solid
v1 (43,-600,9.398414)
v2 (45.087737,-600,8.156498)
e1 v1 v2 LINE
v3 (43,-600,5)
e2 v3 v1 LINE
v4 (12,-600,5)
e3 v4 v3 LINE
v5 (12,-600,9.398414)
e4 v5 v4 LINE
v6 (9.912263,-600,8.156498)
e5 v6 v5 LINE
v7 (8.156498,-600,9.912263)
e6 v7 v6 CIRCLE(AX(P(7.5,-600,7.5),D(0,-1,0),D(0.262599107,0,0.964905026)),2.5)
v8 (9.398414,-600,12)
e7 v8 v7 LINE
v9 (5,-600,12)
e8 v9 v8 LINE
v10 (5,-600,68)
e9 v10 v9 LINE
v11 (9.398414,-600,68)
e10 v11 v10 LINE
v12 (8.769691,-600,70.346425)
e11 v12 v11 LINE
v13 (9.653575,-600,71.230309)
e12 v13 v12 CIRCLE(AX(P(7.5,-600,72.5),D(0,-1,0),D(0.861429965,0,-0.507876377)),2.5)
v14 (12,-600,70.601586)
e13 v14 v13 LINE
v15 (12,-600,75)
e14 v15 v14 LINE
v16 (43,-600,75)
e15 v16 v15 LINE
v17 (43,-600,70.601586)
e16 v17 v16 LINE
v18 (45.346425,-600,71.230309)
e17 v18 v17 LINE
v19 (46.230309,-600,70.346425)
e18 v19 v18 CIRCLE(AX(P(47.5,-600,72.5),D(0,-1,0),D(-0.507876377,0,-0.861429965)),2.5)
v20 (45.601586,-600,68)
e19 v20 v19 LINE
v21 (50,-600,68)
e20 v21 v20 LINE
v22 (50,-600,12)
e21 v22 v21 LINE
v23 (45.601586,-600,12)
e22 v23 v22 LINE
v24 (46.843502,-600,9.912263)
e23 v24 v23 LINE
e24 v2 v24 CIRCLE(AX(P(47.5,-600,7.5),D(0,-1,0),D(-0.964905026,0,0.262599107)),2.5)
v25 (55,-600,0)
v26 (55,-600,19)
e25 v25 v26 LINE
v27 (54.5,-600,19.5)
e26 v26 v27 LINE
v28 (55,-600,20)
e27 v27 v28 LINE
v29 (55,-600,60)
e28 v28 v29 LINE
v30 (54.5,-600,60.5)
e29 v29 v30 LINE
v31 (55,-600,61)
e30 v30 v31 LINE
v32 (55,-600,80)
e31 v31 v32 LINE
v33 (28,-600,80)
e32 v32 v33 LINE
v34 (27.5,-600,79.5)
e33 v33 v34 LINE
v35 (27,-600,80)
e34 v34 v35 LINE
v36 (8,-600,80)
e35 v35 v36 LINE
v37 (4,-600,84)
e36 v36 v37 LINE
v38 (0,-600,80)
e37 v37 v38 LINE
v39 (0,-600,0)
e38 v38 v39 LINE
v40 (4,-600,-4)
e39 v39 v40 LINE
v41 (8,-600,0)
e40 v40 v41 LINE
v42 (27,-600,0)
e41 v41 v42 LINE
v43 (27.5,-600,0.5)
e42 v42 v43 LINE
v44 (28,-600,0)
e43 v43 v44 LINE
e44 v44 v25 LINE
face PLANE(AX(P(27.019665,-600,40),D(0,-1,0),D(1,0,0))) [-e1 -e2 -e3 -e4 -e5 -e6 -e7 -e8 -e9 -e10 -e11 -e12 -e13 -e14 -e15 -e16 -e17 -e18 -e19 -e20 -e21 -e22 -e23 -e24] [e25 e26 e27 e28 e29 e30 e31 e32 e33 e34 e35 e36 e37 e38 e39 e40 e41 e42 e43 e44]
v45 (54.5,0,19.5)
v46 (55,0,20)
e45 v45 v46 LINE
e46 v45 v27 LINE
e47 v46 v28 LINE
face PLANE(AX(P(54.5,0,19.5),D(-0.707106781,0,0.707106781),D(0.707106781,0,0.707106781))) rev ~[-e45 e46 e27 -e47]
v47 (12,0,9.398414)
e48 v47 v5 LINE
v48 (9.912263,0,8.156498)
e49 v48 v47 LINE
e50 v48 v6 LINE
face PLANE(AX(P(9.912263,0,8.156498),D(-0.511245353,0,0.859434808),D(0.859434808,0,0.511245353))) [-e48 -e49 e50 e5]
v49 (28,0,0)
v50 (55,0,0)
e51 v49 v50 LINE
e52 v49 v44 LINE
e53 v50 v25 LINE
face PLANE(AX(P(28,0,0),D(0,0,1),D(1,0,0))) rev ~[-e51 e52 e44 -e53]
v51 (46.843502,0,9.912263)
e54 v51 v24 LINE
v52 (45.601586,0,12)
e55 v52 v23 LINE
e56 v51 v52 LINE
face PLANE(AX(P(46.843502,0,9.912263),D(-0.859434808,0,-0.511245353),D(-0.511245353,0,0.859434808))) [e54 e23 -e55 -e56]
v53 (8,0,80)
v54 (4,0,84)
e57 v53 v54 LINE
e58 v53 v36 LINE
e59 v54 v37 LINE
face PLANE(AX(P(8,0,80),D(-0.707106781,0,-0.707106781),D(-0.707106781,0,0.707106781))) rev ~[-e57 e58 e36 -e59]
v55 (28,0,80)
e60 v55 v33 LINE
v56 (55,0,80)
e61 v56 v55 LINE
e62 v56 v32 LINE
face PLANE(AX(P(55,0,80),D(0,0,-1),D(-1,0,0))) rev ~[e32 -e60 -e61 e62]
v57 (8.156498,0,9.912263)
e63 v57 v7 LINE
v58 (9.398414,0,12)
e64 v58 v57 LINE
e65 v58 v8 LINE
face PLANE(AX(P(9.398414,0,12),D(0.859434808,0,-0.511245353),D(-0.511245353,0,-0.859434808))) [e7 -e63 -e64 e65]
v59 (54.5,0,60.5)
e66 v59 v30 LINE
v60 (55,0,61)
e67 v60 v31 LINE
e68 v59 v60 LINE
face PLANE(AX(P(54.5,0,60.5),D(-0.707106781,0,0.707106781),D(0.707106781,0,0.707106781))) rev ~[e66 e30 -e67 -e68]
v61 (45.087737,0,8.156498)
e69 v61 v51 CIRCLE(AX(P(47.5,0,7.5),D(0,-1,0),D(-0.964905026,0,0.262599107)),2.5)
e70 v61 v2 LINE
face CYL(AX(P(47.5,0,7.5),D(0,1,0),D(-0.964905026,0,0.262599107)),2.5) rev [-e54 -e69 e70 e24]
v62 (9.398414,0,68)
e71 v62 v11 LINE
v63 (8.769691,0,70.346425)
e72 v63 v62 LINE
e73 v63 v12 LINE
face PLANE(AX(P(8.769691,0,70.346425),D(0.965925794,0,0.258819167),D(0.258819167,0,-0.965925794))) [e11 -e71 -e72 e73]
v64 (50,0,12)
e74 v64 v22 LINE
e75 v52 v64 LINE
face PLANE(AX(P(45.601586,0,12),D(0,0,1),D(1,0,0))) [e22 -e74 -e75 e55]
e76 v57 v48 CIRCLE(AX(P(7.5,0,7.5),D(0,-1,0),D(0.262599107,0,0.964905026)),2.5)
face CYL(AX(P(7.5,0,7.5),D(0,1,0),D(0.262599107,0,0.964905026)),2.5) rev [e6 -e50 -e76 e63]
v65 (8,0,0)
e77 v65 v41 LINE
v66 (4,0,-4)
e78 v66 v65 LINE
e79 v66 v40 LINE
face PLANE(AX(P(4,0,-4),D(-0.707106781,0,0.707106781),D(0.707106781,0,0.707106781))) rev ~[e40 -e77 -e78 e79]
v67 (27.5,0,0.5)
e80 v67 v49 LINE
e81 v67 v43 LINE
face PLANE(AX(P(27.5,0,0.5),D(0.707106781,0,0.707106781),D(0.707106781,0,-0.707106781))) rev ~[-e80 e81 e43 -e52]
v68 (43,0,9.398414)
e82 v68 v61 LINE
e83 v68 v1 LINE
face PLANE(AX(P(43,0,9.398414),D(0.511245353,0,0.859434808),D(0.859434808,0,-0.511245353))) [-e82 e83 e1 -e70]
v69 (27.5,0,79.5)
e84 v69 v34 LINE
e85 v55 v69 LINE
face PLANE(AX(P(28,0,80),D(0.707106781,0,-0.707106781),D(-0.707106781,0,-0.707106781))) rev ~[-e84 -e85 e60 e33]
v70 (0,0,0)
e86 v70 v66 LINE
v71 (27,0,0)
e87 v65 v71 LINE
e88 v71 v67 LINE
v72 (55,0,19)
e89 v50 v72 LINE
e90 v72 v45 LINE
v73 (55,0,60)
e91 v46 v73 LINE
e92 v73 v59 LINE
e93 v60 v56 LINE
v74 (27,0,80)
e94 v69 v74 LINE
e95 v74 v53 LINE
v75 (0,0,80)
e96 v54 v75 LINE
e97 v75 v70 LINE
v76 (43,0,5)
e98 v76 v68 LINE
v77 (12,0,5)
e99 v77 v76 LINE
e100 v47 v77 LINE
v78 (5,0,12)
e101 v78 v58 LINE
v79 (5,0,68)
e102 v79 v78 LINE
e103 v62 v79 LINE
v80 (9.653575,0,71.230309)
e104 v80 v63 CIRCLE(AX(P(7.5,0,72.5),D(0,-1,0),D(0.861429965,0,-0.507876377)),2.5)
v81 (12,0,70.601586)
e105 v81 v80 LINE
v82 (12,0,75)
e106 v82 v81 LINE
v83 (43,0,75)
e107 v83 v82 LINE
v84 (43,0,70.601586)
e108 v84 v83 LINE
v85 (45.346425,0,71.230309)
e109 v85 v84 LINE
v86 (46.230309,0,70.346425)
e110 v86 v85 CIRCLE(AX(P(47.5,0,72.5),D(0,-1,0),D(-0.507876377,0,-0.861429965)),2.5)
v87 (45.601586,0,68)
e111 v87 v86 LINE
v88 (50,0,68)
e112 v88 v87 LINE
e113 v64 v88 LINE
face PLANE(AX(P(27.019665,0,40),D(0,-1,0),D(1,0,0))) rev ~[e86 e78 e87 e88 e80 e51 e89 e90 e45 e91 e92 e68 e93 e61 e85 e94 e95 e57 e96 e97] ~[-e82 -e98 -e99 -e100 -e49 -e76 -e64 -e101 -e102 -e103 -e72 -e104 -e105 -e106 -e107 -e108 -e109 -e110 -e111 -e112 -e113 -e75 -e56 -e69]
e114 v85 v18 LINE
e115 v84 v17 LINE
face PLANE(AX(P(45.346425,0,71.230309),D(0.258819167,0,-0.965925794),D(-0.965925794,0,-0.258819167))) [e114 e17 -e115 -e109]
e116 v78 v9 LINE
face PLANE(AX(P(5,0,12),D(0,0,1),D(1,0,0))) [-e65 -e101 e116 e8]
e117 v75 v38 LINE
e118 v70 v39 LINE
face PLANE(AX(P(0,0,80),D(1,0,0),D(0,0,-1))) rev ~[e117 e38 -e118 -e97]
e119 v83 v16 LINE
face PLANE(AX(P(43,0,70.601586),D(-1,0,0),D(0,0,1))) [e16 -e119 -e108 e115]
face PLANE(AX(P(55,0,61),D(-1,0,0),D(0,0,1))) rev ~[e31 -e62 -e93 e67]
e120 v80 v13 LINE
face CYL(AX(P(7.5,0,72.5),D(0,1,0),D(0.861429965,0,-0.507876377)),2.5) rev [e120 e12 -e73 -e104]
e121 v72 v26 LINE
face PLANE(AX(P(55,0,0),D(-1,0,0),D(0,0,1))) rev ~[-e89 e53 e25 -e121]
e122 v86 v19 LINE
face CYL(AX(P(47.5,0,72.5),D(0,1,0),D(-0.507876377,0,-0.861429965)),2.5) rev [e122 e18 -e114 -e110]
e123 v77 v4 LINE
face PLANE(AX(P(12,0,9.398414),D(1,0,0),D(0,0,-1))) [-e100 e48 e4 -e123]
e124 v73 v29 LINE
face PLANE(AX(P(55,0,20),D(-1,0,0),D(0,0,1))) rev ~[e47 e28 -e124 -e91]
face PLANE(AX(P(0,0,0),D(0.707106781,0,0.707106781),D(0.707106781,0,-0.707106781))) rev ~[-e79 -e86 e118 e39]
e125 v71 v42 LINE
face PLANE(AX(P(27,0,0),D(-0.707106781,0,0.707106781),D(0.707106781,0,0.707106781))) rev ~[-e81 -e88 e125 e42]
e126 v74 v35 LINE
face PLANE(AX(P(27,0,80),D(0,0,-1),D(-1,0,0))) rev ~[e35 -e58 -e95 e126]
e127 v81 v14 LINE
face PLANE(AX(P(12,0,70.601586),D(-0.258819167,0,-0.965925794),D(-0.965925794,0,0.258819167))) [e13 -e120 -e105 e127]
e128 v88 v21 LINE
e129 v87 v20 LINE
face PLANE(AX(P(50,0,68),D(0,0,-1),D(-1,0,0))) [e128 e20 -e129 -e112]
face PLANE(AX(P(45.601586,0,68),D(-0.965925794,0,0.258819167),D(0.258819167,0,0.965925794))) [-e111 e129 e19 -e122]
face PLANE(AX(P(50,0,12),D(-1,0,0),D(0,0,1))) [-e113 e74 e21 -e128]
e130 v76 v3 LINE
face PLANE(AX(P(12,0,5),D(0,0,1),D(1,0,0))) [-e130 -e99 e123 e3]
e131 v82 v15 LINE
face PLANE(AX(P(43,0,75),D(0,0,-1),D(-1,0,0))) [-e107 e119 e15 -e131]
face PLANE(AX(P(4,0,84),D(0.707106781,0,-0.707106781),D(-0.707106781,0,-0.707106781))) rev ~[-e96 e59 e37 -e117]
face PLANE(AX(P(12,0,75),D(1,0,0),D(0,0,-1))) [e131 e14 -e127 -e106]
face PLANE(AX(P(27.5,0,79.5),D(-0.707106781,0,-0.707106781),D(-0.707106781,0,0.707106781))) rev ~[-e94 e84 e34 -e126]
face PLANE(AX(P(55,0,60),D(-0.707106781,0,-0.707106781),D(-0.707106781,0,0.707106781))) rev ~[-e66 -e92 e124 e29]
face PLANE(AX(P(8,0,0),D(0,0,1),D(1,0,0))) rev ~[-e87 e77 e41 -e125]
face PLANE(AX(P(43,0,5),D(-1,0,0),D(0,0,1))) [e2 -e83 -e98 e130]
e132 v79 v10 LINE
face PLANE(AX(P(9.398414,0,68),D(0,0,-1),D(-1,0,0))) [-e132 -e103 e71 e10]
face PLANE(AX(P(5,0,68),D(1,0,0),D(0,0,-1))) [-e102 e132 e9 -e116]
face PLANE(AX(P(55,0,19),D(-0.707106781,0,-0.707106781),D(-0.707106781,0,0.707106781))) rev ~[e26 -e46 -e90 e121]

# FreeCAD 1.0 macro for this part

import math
import FreeCAD as App
import Part
import Sketcher

V = App.Vector
Q = App.Units.Quantity

doc = App.newDocument("Part")
body = doc.addObject("PartDesign::Body", "Body")

sketch1 = doc.addObject("Sketcher::SketchObject", "Sketch")
body.addObject(sketch1)
sketch1.AttachmentSupport = (doc.XZ_Plane, [""])
sketch1.MapMode = "FlatFace"
sketch1.addGeometry(Part.LineSegment(V(0, 80, 0), V(0, 0, 0)), False)
sketch1.addGeometry(Part.LineSegment(V(0, 0, 0), V(4, -4, 0)), False)
sketch1.addGeometry(Part.LineSegment(V(4, -4, 0), V(8, 0, 0)), False)
sketch1.addGeometry(Part.LineSegment(V(8, 0, 0), V(27, 0, 0)), False)
sketch1.addGeometry(Part.LineSegment(V(27, 0, 0), V(27.5, 0.5, 0)), False)
sketch1.addGeometry(Part.LineSegment(V(27.5, 0.5, 0), V(28, 0, 0)), False)
sketch1.addGeometry(Part.LineSegment(V(28, 0, 0), V(55, 0, 0)), False)
sketch1.addGeometry(Part.LineSegment(V(55, 0, 0), V(55, 19, 0)), False)
sketch1.addGeometry(Part.LineSegment(V(55, 19, 0), V(54.5, 19.5, 0)), False)
sketch1.addGeometry(Part.LineSegment(V(54.5, 19.5, 0), V(55, 20, 0)), False)
sketch1.addGeometry(Part.LineSegment(V(55, 20, 0), V(55, 60, 0)), False)
sketch1.addGeometry(Part.LineSegment(V(55, 60, 0), V(54.5, 60.5, 0)), False)
sketch1.addGeometry(Part.LineSegment(V(54.5, 60.5, 0), V(55, 61, 0)), False)
sketch1.addGeometry(Part.LineSegment(V(55, 61, 0), V(55, 80, 0)), False)
sketch1.addGeometry(Part.LineSegment(V(55, 80, 0), V(28, 80, 0)), False)
sketch1.addGeometry(Part.LineSegment(V(28, 80, 0), V(27.5, 79.5, 0)), False)
sketch1.addGeometry(Part.LineSegment(V(27.5, 79.5, 0), V(27, 80, 0)), False)
sketch1.addGeometry(Part.LineSegment(V(27, 80, 0), V(8, 80, 0)), False)
sketch1.addGeometry(Part.LineSegment(V(8, 80, 0), V(4, 84, 0)), False)
sketch1.addGeometry(Part.LineSegment(V(4, 84, 0), V(0, 80, 0)), False)
sketch1.addConstraint(Sketcher.Constraint("Coincident", 0, 2, 1, 1))
sketch1.addConstraint(Sketcher.Constraint("Coincident", 1, 2, 2, 1))
sketch1.addConstraint(Sketcher.Constraint("Coincident", 2, 2, 3, 1))
sketch1.addConstraint(Sketcher.Constraint("Coincident", 3, 2, 4, 1))
sketch1.addConstraint(Sketcher.Constraint("Coincident", 4, 2, 5, 1))
sketch1.addConstraint(Sketcher.Constraint("Coincident", 5, 2, 6, 1))
sketch1.addConstraint(Sketcher.Constraint("Coincident", 6, 2, 7, 1))
sketch1.addConstraint(Sketcher.Constraint("Coincident", 7, 2, 8, 1))
sketch1.addConstraint(Sketcher.Constraint("Coincident", 8, 2, 9, 1))
sketch1.addConstraint(Sketcher.Constraint("Coincident", 9, 2, 10, 1))
sketch1.addConstraint(Sketcher.Constraint("Coincident", 10, 2, 11, 1))
sketch1.addConstraint(Sketcher.Constraint("Coincident", 11, 2, 12, 1))
sketch1.addConstraint(Sketcher.Constraint("Coincident", 12, 2, 13, 1))
sketch1.addConstraint(Sketcher.Constraint("Coincident", 13, 2, 14, 1))
sketch1.addConstraint(Sketcher.Constraint("Coincident", 14, 2, 15, 1))
sketch1.addConstraint(Sketcher.Constraint("Coincident", 15, 2, 16, 1))
sketch1.addConstraint(Sketcher.Constraint("Coincident", 16, 2, 17, 1))
sketch1.addConstraint(Sketcher.Constraint("Coincident", 17, 2, 18, 1))
sketch1.addConstraint(Sketcher.Constraint("Coincident", 18, 2, 19, 1))
sketch1.addConstraint(Sketcher.Constraint("Coincident", 19, 2, 0, 1))
sketch1.addConstraint(Sketcher.Constraint("Vertical", 0))
sketch1.addConstraint(Sketcher.Constraint("Horizontal", 3))
sketch1.addConstraint(Sketcher.Constraint("Horizontal", 6))
sketch1.addConstraint(Sketcher.Constraint("Vertical", 7))
sketch1.addConstraint(Sketcher.Constraint("Vertical", 10))
sketch1.addConstraint(Sketcher.Constraint("Vertical", 13))
sketch1.addConstraint(Sketcher.Constraint("Horizontal", 14))
sketch1.addConstraint(Sketcher.Constraint("Horizontal", 17))
sketch1.addConstraint(Sketcher.Constraint("Coincident", 0, 2, -1, 1))
sketch1.addConstraint(Sketcher.Constraint("PointOnObject", 2, 2, -1))
sketch1.addConstraint(Sketcher.Constraint("PointOnObject", 5, 2, -1))
sketch1.addConstraint(Sketcher.Constraint("Perpendicular", 1, 2))
sketch1.addConstraint(Sketcher.Constraint("Parallel", 2, 4))
sketch1.addConstraint(Sketcher.Constraint("Perpendicular", 4, 5))
sketch1.addConstraint(Sketcher.Constraint("Parallel", 5, 8))
sketch1.addConstraint(Sketcher.Constraint("Perpendicular", 8, 9))
sketch1.addConstraint(Sketcher.Constraint("Perpendicular", 9, 11))
sketch1.addConstraint(Sketcher.Constraint("Perpendicular", 11, 12))
sketch1.addConstraint(Sketcher.Constraint("Parallel", 12, 15))
sketch1.addConstraint(Sketcher.Constraint("Perpendicular", 15, 16))
sketch1.addConstraint(Sketcher.Constraint("Parallel", 16, 18))
sketch1.addConstraint(Sketcher.Constraint("Perpendicular", 18, 19))
sketch1.addConstraint(Sketcher.Constraint("Horizontal", 14, 2, 16, 2))
sketch1.addConstraint(Sketcher.Constraint("Horizontal", 17, 2, 19, 2))
sketch1.addConstraint(Sketcher.Constraint("Vertical", 7, 2, 9, 2))
sketch1.addConstraint(Sketcher.Constraint("Vertical", 8, 2, 11, 2))
sketch1.addConstraint(Sketcher.Constraint("Vertical", 10, 2, 12, 2))
sketch1.addConstraint(Sketcher.Constraint("Vertical", 5, 2, 14, 2))
sketch1.addConstraint(Sketcher.Constraint("Vertical", 4, 2, 15, 2))
sketch1.addConstraint(Sketcher.Constraint("Vertical", 3, 2, 16, 2))
sketch1.addConstraint(Sketcher.Constraint("Vertical", 2, 2, 17, 2))
sketch1.addConstraint(Sketcher.Constraint("Equal", 17, 7))
sketch1.addConstraint(Sketcher.Constraint("Equal", 7, 13))
sketch1.addConstraint(Sketcher.Constraint("Equal", 5, 8))
sketch1.addConstraint(Sketcher.Constraint("DistanceX", 3, 1, 3, 2, Q("19 mm")))
sketch1.addConstraint(Sketcher.Constraint("DistanceX", 6, 1, 6, 2, Q("27 mm")))
sketch1.addConstraint(Sketcher.Constraint("DistanceY", 0, 2, 0, 1, Q("80 mm")))
sketch1.addConstraint(Sketcher.Constraint("DistanceY", 10, 1, 10, 2, Q("40 mm")))
sketch1.addConstraint(Sketcher.Constraint("DistanceX", -1, 1, 1, 2, Q("4 mm")))
pad1 = doc.addObject("PartDesign::Pad", "Pad")
body.addObject(pad1)
pad1.Profile = sketch1
pad1.Length = 600

sketch2 = doc.addObject("Sketcher::SketchObject", "Sketch001")
body.addObject(sketch2)
sketch2.AttachmentSupport = (doc.XZ_Plane, [""])
sketch2.MapMode = "FlatFace"
sketch2.addGeometry(Part.LineSegment(V(5, 12, 0), V(9.4, 12, 0)), False)
sketch2.addGeometry(Part.LineSegment(V(9.4, 12, 0), V(8.2, 9.9, 0)), False)
sketch2.addGeometry(Part.ArcOfCircle(Part.Circle(V(7.5, 7.5, 0), V(0, 0, 1), 2.5), math.radians(75), math.radians(375)), False)
sketch2.addGeometry(Part.LineSegment(V(9.9, 8.2, 0), V(12, 9.4, 0)), False)
sketch2.addGeometry(Part.LineSegment(V(12, 9.4, 0), V(12, 5, 0)), False)
sketch2.addGeometry(Part.LineSegment(V(12, 5, 0), V(43, 5, 0)), False)
sketch2.addGeometry(Part.LineSegment(V(43, 5, 0), V(43, 9.4, 0)), False)
sketch2.addGeometry(Part.LineSegment(V(43, 9.4, 0), V(45.1, 8.2, 0)), False)
sketch2.addGeometry(Part.ArcOfCircle(Part.Circle(V(47.5, 7.5, 0), V(0, 0, 1), 2.5), math.radians(165), math.radians(465)), False)
sketch2.addGeometry(Part.LineSegment(V(46.8, 9.9, 0), V(45.6, 12, 0)), False)
sketch2.addGeometry(Part.LineSegment(V(45.6, 12, 0), V(50, 12, 0)), False)
sketch2.addGeometry(Part.LineSegment(V(50, 12, 0), V(50, 68, 0)), False)
sketch2.addGeometry(Part.LineSegment(V(50, 68, 0), V(45.6, 68, 0)), False)
sketch2.addGeometry(Part.LineSegment(V(45.6, 68, 0), V(46.2, 70.3, 0)), False)
sketch2.addGeometry(Part.ArcOfCircle(Part.Circle(V(47.5, 72.5, 0), V(0, 0, 1), 2.5), math.radians(-121), math.radians(211)), False)
sketch2.addGeometry(Part.LineSegment(V(45.3, 71.2, 0), V(43, 70.6, 0)), False)
sketch2.addGeometry(Part.LineSegment(V(43, 70.6, 0), V(43, 75, 0)), False)
sketch2.addGeometry(Part.LineSegment(V(43, 75, 0), V(12, 75, 0)), False)
sketch2.addGeometry(Part.LineSegment(V(12, 75, 0), V(12, 70.6, 0)), False)
sketch2.addGeometry(Part.LineSegment(V(12, 70.6, 0), V(9.7, 71.2, 0)), False)
sketch2.addGeometry(Part.ArcOfCircle(Part.Circle(V(7.5, 72.5, 0), V(0, 0, 1), 2.5), math.radians(-31), math.radians(301)), False)
sketch2.addGeometry(Part.LineSegment(V(8.8, 70.3, 0), V(9.4, 68, 0)), False)
sketch2.addGeometry(Part.LineSegment(V(9.4, 68, 0), V(5, 68, 0)), False)
sketch2.addGeometry(Part.LineSegment(V(5, 68, 0), V(5, 12, 0)), False)
sketch2.addConstraint(Sketcher.Constraint("Coincident", 0, 2, 1, 1))
sketch2.addConstraint(Sketcher.Constraint("Coincident", 1, 2, 2, 1))
sketch2.addConstraint(Sketcher.Constraint("Coincident", 2, 2, 3, 1))
sketch2.addConstraint(Sketcher.Constraint("Coincident", 3, 2, 4, 1))
sketch2.addConstraint(Sketcher.Constraint("Coincident", 4, 2, 5, 1))
sketch2.addConstraint(Sketcher.Constraint("Coincident", 5, 2, 6, 1))
sketch2.addConstraint(Sketcher.Constraint("Coincident", 6, 2, 7, 1))
sketch2.addConstraint(Sketcher.Constraint("Coincident", 7, 2, 8, 1))
sketch2.addConstraint(Sketcher.Constraint("Coincident", 8, 2, 9, 1))
sketch2.addConstraint(Sketcher.Constraint("Coincident", 9, 2, 10, 1))
sketch2.addConstraint(Sketcher.Constraint("Coincident", 10, 2, 11, 1))
sketch2.addConstraint(Sketcher.Constraint("Coincident", 11, 2, 12, 1))
sketch2.addConstraint(Sketcher.Constraint("Coincident", 12, 2, 13, 1))
sketch2.addConstraint(Sketcher.Constraint("Coincident", 13, 2, 14, 1))
sketch2.addConstraint(Sketcher.Constraint("Coincident", 14, 2, 15, 1))
sketch2.addConstraint(Sketcher.Constraint("Coincident", 15, 2, 16, 1))
sketch2.addConstraint(Sketcher.Constraint("Coincident", 16, 2, 17, 1))
sketch2.addConstraint(Sketcher.Constraint("Coincident", 17, 2, 18, 1))
sketch2.addConstraint(Sketcher.Constraint("Coincident", 18, 2, 19, 1))
sketch2.addConstraint(Sketcher.Constraint("Coincident", 19, 2, 20, 1))
sketch2.addConstraint(Sketcher.Constraint("Coincident", 20, 2, 21, 1))
sketch2.addConstraint(Sketcher.Constraint("Coincident", 21, 2, 22, 1))
sketch2.addConstraint(Sketcher.Constraint("Coincident", 22, 2, 23, 1))
sketch2.addConstraint(Sketcher.Constraint("Coincident", 23, 2, 0, 1))
sketch2.addConstraint(Sketcher.Constraint("Horizontal", 0))
sketch2.addConstraint(Sketcher.Constraint("Vertical", 4))
sketch2.addConstraint(Sketcher.Constraint("Horizontal", 5))
sketch2.addConstraint(Sketcher.Constraint("Vertical", 6))
sketch2.addConstraint(Sketcher.Constraint("Horizontal", 10))
sketch2.addConstraint(Sketcher.Constraint("Vertical", 11))
sketch2.addConstraint(Sketcher.Constraint("Horizontal", 12))
sketch2.addConstraint(Sketcher.Constraint("Vertical", 16))
sketch2.addConstraint(Sketcher.Constraint("Horizontal", 17))
sketch2.addConstraint(Sketcher.Constraint("Vertical", 18))
sketch2.addConstraint(Sketcher.Constraint("Horizontal", 22))
sketch2.addConstraint(Sketcher.Constraint("Vertical", 23))
sketch2.addConstraint(Sketcher.Constraint("Equal", 2, 8))
sketch2.addConstraint(Sketcher.Constraint("Equal", 8, 14))
sketch2.addConstraint(Sketcher.Constraint("Equal", 14, 20))
sketch2.addConstraint(Sketcher.Constraint("Perpendicular", 1, 7))
sketch2.addConstraint(Sketcher.Constraint("Perpendicular", 3, 9))
sketch2.addConstraint(Sketcher.Constraint("Perpendicular", 13, 19))
sketch2.addConstraint(Sketcher.Constraint("Perpendicular", 15, 21))
sketch2.addConstraint(Sketcher.Constraint("Horizontal", 2, 3, 8, 3))
sketch2.addConstraint(Sketcher.Constraint("Horizontal", 14, 3, 20, 3))
sketch2.addConstraint(Sketcher.Constraint("Horizontal", 3, 2, 6, 2))
sketch2.addConstraint(Sketcher.Constraint("Horizontal", 2, 2, 7, 2))
sketch2.addConstraint(Sketcher.Constraint("Horizontal", 1, 2, 8, 2))
sketch2.addConstraint(Sketcher.Constraint("Horizontal", 0, 2, 9, 2))
sketch2.addConstraint(Sketcher.Constraint("Horizontal", 15, 2, 18, 2))
sketch2.addConstraint(Sketcher.Constraint("Horizontal", 14, 2, 19, 2))
sketch2.addConstraint(Sketcher.Constraint("Horizontal", 13, 2, 20, 2))
sketch2.addConstraint(Sketcher.Constraint("Horizontal", 12, 2, 21, 2))
sketch2.addConstraint(Sketcher.Constraint("Vertical", 8, 3, 14, 3))
sketch2.addConstraint(Sketcher.Constraint("Vertical", 2, 3, 20, 3))
sketch2.addConstraint(Sketcher.Constraint("Vertical", 9, 2, 12, 2))
sketch2.addConstraint(Sketcher.Constraint("Vertical", 6, 2, 15, 2))
sketch2.addConstraint(Sketcher.Constraint("Vertical", 4, 2, 17, 2))
sketch2.addConstraint(Sketcher.Constraint("Vertical", 0, 2, 21, 2))
sketch2.addConstraint(Sketcher.Constraint("Equal", 0, 10))
sketch2.addConstraint(Sketcher.Constraint("Equal", 22, 4))
sketch2.addConstraint(Sketcher.Constraint("Equal", 6, 16))
sketch2.addConstraint(Sketcher.Constraint("Equal", 1, 3))
sketch2.addConstraint(Sketcher.Constraint("Equal", 9, 13))
sketch2.addConstraint(Sketcher.Constraint("Equal", 13, 15))
sketch2.addConstraint(Sketcher.Constraint("Radius", 2, Q("2.5 mm")))
sketch2.addConstraint(Sketcher.Constraint("DistanceX", 5, 1, 5, 2, Q("31 mm")))
sketch2.addConstraint(Sketcher.Constraint("DistanceY", 11, 1, 11, 2, Q("56 mm")))
sketch2.addConstraint(Sketcher.Constraint("Angle", 13, Q("74.999993 deg")))
sketch2.addConstraint(Sketcher.Constraint("DistanceY", -1, 1, 0, 2, Q("12 mm")))
sketch2.addConstraint(Sketcher.Constraint("DistanceX", -1, 1, 3, 2, Q("12 mm")))
sketch2.addConstraint(Sketcher.Constraint("DistanceY", -1, 1, 4, 2, Q("5 mm")))
sketch2.addConstraint(Sketcher.Constraint("DistanceX", -1, 1, 10, 2, Q("50 mm")))
sketch2.addConstraint(Sketcher.Constraint("DistanceY", -1, 1, 16, 2, Q("75 mm")))
sketch2.addConstraint(Sketcher.Constraint("DistanceX", 2, 3, 8, 3, Q("40 mm")))
sketch2.addConstraint(Sketcher.Constraint("DistanceX", 1, 2, 8, 3, Q("39.343502 mm")))
pocket1 = doc.addObject("PartDesign::Pocket", "Pocket")
body.addObject(pocket1)
pocket1.Profile = sketch2
pocket1.Type = "ThroughAll"
pocket1.Reversed = True

doc.recompute()
